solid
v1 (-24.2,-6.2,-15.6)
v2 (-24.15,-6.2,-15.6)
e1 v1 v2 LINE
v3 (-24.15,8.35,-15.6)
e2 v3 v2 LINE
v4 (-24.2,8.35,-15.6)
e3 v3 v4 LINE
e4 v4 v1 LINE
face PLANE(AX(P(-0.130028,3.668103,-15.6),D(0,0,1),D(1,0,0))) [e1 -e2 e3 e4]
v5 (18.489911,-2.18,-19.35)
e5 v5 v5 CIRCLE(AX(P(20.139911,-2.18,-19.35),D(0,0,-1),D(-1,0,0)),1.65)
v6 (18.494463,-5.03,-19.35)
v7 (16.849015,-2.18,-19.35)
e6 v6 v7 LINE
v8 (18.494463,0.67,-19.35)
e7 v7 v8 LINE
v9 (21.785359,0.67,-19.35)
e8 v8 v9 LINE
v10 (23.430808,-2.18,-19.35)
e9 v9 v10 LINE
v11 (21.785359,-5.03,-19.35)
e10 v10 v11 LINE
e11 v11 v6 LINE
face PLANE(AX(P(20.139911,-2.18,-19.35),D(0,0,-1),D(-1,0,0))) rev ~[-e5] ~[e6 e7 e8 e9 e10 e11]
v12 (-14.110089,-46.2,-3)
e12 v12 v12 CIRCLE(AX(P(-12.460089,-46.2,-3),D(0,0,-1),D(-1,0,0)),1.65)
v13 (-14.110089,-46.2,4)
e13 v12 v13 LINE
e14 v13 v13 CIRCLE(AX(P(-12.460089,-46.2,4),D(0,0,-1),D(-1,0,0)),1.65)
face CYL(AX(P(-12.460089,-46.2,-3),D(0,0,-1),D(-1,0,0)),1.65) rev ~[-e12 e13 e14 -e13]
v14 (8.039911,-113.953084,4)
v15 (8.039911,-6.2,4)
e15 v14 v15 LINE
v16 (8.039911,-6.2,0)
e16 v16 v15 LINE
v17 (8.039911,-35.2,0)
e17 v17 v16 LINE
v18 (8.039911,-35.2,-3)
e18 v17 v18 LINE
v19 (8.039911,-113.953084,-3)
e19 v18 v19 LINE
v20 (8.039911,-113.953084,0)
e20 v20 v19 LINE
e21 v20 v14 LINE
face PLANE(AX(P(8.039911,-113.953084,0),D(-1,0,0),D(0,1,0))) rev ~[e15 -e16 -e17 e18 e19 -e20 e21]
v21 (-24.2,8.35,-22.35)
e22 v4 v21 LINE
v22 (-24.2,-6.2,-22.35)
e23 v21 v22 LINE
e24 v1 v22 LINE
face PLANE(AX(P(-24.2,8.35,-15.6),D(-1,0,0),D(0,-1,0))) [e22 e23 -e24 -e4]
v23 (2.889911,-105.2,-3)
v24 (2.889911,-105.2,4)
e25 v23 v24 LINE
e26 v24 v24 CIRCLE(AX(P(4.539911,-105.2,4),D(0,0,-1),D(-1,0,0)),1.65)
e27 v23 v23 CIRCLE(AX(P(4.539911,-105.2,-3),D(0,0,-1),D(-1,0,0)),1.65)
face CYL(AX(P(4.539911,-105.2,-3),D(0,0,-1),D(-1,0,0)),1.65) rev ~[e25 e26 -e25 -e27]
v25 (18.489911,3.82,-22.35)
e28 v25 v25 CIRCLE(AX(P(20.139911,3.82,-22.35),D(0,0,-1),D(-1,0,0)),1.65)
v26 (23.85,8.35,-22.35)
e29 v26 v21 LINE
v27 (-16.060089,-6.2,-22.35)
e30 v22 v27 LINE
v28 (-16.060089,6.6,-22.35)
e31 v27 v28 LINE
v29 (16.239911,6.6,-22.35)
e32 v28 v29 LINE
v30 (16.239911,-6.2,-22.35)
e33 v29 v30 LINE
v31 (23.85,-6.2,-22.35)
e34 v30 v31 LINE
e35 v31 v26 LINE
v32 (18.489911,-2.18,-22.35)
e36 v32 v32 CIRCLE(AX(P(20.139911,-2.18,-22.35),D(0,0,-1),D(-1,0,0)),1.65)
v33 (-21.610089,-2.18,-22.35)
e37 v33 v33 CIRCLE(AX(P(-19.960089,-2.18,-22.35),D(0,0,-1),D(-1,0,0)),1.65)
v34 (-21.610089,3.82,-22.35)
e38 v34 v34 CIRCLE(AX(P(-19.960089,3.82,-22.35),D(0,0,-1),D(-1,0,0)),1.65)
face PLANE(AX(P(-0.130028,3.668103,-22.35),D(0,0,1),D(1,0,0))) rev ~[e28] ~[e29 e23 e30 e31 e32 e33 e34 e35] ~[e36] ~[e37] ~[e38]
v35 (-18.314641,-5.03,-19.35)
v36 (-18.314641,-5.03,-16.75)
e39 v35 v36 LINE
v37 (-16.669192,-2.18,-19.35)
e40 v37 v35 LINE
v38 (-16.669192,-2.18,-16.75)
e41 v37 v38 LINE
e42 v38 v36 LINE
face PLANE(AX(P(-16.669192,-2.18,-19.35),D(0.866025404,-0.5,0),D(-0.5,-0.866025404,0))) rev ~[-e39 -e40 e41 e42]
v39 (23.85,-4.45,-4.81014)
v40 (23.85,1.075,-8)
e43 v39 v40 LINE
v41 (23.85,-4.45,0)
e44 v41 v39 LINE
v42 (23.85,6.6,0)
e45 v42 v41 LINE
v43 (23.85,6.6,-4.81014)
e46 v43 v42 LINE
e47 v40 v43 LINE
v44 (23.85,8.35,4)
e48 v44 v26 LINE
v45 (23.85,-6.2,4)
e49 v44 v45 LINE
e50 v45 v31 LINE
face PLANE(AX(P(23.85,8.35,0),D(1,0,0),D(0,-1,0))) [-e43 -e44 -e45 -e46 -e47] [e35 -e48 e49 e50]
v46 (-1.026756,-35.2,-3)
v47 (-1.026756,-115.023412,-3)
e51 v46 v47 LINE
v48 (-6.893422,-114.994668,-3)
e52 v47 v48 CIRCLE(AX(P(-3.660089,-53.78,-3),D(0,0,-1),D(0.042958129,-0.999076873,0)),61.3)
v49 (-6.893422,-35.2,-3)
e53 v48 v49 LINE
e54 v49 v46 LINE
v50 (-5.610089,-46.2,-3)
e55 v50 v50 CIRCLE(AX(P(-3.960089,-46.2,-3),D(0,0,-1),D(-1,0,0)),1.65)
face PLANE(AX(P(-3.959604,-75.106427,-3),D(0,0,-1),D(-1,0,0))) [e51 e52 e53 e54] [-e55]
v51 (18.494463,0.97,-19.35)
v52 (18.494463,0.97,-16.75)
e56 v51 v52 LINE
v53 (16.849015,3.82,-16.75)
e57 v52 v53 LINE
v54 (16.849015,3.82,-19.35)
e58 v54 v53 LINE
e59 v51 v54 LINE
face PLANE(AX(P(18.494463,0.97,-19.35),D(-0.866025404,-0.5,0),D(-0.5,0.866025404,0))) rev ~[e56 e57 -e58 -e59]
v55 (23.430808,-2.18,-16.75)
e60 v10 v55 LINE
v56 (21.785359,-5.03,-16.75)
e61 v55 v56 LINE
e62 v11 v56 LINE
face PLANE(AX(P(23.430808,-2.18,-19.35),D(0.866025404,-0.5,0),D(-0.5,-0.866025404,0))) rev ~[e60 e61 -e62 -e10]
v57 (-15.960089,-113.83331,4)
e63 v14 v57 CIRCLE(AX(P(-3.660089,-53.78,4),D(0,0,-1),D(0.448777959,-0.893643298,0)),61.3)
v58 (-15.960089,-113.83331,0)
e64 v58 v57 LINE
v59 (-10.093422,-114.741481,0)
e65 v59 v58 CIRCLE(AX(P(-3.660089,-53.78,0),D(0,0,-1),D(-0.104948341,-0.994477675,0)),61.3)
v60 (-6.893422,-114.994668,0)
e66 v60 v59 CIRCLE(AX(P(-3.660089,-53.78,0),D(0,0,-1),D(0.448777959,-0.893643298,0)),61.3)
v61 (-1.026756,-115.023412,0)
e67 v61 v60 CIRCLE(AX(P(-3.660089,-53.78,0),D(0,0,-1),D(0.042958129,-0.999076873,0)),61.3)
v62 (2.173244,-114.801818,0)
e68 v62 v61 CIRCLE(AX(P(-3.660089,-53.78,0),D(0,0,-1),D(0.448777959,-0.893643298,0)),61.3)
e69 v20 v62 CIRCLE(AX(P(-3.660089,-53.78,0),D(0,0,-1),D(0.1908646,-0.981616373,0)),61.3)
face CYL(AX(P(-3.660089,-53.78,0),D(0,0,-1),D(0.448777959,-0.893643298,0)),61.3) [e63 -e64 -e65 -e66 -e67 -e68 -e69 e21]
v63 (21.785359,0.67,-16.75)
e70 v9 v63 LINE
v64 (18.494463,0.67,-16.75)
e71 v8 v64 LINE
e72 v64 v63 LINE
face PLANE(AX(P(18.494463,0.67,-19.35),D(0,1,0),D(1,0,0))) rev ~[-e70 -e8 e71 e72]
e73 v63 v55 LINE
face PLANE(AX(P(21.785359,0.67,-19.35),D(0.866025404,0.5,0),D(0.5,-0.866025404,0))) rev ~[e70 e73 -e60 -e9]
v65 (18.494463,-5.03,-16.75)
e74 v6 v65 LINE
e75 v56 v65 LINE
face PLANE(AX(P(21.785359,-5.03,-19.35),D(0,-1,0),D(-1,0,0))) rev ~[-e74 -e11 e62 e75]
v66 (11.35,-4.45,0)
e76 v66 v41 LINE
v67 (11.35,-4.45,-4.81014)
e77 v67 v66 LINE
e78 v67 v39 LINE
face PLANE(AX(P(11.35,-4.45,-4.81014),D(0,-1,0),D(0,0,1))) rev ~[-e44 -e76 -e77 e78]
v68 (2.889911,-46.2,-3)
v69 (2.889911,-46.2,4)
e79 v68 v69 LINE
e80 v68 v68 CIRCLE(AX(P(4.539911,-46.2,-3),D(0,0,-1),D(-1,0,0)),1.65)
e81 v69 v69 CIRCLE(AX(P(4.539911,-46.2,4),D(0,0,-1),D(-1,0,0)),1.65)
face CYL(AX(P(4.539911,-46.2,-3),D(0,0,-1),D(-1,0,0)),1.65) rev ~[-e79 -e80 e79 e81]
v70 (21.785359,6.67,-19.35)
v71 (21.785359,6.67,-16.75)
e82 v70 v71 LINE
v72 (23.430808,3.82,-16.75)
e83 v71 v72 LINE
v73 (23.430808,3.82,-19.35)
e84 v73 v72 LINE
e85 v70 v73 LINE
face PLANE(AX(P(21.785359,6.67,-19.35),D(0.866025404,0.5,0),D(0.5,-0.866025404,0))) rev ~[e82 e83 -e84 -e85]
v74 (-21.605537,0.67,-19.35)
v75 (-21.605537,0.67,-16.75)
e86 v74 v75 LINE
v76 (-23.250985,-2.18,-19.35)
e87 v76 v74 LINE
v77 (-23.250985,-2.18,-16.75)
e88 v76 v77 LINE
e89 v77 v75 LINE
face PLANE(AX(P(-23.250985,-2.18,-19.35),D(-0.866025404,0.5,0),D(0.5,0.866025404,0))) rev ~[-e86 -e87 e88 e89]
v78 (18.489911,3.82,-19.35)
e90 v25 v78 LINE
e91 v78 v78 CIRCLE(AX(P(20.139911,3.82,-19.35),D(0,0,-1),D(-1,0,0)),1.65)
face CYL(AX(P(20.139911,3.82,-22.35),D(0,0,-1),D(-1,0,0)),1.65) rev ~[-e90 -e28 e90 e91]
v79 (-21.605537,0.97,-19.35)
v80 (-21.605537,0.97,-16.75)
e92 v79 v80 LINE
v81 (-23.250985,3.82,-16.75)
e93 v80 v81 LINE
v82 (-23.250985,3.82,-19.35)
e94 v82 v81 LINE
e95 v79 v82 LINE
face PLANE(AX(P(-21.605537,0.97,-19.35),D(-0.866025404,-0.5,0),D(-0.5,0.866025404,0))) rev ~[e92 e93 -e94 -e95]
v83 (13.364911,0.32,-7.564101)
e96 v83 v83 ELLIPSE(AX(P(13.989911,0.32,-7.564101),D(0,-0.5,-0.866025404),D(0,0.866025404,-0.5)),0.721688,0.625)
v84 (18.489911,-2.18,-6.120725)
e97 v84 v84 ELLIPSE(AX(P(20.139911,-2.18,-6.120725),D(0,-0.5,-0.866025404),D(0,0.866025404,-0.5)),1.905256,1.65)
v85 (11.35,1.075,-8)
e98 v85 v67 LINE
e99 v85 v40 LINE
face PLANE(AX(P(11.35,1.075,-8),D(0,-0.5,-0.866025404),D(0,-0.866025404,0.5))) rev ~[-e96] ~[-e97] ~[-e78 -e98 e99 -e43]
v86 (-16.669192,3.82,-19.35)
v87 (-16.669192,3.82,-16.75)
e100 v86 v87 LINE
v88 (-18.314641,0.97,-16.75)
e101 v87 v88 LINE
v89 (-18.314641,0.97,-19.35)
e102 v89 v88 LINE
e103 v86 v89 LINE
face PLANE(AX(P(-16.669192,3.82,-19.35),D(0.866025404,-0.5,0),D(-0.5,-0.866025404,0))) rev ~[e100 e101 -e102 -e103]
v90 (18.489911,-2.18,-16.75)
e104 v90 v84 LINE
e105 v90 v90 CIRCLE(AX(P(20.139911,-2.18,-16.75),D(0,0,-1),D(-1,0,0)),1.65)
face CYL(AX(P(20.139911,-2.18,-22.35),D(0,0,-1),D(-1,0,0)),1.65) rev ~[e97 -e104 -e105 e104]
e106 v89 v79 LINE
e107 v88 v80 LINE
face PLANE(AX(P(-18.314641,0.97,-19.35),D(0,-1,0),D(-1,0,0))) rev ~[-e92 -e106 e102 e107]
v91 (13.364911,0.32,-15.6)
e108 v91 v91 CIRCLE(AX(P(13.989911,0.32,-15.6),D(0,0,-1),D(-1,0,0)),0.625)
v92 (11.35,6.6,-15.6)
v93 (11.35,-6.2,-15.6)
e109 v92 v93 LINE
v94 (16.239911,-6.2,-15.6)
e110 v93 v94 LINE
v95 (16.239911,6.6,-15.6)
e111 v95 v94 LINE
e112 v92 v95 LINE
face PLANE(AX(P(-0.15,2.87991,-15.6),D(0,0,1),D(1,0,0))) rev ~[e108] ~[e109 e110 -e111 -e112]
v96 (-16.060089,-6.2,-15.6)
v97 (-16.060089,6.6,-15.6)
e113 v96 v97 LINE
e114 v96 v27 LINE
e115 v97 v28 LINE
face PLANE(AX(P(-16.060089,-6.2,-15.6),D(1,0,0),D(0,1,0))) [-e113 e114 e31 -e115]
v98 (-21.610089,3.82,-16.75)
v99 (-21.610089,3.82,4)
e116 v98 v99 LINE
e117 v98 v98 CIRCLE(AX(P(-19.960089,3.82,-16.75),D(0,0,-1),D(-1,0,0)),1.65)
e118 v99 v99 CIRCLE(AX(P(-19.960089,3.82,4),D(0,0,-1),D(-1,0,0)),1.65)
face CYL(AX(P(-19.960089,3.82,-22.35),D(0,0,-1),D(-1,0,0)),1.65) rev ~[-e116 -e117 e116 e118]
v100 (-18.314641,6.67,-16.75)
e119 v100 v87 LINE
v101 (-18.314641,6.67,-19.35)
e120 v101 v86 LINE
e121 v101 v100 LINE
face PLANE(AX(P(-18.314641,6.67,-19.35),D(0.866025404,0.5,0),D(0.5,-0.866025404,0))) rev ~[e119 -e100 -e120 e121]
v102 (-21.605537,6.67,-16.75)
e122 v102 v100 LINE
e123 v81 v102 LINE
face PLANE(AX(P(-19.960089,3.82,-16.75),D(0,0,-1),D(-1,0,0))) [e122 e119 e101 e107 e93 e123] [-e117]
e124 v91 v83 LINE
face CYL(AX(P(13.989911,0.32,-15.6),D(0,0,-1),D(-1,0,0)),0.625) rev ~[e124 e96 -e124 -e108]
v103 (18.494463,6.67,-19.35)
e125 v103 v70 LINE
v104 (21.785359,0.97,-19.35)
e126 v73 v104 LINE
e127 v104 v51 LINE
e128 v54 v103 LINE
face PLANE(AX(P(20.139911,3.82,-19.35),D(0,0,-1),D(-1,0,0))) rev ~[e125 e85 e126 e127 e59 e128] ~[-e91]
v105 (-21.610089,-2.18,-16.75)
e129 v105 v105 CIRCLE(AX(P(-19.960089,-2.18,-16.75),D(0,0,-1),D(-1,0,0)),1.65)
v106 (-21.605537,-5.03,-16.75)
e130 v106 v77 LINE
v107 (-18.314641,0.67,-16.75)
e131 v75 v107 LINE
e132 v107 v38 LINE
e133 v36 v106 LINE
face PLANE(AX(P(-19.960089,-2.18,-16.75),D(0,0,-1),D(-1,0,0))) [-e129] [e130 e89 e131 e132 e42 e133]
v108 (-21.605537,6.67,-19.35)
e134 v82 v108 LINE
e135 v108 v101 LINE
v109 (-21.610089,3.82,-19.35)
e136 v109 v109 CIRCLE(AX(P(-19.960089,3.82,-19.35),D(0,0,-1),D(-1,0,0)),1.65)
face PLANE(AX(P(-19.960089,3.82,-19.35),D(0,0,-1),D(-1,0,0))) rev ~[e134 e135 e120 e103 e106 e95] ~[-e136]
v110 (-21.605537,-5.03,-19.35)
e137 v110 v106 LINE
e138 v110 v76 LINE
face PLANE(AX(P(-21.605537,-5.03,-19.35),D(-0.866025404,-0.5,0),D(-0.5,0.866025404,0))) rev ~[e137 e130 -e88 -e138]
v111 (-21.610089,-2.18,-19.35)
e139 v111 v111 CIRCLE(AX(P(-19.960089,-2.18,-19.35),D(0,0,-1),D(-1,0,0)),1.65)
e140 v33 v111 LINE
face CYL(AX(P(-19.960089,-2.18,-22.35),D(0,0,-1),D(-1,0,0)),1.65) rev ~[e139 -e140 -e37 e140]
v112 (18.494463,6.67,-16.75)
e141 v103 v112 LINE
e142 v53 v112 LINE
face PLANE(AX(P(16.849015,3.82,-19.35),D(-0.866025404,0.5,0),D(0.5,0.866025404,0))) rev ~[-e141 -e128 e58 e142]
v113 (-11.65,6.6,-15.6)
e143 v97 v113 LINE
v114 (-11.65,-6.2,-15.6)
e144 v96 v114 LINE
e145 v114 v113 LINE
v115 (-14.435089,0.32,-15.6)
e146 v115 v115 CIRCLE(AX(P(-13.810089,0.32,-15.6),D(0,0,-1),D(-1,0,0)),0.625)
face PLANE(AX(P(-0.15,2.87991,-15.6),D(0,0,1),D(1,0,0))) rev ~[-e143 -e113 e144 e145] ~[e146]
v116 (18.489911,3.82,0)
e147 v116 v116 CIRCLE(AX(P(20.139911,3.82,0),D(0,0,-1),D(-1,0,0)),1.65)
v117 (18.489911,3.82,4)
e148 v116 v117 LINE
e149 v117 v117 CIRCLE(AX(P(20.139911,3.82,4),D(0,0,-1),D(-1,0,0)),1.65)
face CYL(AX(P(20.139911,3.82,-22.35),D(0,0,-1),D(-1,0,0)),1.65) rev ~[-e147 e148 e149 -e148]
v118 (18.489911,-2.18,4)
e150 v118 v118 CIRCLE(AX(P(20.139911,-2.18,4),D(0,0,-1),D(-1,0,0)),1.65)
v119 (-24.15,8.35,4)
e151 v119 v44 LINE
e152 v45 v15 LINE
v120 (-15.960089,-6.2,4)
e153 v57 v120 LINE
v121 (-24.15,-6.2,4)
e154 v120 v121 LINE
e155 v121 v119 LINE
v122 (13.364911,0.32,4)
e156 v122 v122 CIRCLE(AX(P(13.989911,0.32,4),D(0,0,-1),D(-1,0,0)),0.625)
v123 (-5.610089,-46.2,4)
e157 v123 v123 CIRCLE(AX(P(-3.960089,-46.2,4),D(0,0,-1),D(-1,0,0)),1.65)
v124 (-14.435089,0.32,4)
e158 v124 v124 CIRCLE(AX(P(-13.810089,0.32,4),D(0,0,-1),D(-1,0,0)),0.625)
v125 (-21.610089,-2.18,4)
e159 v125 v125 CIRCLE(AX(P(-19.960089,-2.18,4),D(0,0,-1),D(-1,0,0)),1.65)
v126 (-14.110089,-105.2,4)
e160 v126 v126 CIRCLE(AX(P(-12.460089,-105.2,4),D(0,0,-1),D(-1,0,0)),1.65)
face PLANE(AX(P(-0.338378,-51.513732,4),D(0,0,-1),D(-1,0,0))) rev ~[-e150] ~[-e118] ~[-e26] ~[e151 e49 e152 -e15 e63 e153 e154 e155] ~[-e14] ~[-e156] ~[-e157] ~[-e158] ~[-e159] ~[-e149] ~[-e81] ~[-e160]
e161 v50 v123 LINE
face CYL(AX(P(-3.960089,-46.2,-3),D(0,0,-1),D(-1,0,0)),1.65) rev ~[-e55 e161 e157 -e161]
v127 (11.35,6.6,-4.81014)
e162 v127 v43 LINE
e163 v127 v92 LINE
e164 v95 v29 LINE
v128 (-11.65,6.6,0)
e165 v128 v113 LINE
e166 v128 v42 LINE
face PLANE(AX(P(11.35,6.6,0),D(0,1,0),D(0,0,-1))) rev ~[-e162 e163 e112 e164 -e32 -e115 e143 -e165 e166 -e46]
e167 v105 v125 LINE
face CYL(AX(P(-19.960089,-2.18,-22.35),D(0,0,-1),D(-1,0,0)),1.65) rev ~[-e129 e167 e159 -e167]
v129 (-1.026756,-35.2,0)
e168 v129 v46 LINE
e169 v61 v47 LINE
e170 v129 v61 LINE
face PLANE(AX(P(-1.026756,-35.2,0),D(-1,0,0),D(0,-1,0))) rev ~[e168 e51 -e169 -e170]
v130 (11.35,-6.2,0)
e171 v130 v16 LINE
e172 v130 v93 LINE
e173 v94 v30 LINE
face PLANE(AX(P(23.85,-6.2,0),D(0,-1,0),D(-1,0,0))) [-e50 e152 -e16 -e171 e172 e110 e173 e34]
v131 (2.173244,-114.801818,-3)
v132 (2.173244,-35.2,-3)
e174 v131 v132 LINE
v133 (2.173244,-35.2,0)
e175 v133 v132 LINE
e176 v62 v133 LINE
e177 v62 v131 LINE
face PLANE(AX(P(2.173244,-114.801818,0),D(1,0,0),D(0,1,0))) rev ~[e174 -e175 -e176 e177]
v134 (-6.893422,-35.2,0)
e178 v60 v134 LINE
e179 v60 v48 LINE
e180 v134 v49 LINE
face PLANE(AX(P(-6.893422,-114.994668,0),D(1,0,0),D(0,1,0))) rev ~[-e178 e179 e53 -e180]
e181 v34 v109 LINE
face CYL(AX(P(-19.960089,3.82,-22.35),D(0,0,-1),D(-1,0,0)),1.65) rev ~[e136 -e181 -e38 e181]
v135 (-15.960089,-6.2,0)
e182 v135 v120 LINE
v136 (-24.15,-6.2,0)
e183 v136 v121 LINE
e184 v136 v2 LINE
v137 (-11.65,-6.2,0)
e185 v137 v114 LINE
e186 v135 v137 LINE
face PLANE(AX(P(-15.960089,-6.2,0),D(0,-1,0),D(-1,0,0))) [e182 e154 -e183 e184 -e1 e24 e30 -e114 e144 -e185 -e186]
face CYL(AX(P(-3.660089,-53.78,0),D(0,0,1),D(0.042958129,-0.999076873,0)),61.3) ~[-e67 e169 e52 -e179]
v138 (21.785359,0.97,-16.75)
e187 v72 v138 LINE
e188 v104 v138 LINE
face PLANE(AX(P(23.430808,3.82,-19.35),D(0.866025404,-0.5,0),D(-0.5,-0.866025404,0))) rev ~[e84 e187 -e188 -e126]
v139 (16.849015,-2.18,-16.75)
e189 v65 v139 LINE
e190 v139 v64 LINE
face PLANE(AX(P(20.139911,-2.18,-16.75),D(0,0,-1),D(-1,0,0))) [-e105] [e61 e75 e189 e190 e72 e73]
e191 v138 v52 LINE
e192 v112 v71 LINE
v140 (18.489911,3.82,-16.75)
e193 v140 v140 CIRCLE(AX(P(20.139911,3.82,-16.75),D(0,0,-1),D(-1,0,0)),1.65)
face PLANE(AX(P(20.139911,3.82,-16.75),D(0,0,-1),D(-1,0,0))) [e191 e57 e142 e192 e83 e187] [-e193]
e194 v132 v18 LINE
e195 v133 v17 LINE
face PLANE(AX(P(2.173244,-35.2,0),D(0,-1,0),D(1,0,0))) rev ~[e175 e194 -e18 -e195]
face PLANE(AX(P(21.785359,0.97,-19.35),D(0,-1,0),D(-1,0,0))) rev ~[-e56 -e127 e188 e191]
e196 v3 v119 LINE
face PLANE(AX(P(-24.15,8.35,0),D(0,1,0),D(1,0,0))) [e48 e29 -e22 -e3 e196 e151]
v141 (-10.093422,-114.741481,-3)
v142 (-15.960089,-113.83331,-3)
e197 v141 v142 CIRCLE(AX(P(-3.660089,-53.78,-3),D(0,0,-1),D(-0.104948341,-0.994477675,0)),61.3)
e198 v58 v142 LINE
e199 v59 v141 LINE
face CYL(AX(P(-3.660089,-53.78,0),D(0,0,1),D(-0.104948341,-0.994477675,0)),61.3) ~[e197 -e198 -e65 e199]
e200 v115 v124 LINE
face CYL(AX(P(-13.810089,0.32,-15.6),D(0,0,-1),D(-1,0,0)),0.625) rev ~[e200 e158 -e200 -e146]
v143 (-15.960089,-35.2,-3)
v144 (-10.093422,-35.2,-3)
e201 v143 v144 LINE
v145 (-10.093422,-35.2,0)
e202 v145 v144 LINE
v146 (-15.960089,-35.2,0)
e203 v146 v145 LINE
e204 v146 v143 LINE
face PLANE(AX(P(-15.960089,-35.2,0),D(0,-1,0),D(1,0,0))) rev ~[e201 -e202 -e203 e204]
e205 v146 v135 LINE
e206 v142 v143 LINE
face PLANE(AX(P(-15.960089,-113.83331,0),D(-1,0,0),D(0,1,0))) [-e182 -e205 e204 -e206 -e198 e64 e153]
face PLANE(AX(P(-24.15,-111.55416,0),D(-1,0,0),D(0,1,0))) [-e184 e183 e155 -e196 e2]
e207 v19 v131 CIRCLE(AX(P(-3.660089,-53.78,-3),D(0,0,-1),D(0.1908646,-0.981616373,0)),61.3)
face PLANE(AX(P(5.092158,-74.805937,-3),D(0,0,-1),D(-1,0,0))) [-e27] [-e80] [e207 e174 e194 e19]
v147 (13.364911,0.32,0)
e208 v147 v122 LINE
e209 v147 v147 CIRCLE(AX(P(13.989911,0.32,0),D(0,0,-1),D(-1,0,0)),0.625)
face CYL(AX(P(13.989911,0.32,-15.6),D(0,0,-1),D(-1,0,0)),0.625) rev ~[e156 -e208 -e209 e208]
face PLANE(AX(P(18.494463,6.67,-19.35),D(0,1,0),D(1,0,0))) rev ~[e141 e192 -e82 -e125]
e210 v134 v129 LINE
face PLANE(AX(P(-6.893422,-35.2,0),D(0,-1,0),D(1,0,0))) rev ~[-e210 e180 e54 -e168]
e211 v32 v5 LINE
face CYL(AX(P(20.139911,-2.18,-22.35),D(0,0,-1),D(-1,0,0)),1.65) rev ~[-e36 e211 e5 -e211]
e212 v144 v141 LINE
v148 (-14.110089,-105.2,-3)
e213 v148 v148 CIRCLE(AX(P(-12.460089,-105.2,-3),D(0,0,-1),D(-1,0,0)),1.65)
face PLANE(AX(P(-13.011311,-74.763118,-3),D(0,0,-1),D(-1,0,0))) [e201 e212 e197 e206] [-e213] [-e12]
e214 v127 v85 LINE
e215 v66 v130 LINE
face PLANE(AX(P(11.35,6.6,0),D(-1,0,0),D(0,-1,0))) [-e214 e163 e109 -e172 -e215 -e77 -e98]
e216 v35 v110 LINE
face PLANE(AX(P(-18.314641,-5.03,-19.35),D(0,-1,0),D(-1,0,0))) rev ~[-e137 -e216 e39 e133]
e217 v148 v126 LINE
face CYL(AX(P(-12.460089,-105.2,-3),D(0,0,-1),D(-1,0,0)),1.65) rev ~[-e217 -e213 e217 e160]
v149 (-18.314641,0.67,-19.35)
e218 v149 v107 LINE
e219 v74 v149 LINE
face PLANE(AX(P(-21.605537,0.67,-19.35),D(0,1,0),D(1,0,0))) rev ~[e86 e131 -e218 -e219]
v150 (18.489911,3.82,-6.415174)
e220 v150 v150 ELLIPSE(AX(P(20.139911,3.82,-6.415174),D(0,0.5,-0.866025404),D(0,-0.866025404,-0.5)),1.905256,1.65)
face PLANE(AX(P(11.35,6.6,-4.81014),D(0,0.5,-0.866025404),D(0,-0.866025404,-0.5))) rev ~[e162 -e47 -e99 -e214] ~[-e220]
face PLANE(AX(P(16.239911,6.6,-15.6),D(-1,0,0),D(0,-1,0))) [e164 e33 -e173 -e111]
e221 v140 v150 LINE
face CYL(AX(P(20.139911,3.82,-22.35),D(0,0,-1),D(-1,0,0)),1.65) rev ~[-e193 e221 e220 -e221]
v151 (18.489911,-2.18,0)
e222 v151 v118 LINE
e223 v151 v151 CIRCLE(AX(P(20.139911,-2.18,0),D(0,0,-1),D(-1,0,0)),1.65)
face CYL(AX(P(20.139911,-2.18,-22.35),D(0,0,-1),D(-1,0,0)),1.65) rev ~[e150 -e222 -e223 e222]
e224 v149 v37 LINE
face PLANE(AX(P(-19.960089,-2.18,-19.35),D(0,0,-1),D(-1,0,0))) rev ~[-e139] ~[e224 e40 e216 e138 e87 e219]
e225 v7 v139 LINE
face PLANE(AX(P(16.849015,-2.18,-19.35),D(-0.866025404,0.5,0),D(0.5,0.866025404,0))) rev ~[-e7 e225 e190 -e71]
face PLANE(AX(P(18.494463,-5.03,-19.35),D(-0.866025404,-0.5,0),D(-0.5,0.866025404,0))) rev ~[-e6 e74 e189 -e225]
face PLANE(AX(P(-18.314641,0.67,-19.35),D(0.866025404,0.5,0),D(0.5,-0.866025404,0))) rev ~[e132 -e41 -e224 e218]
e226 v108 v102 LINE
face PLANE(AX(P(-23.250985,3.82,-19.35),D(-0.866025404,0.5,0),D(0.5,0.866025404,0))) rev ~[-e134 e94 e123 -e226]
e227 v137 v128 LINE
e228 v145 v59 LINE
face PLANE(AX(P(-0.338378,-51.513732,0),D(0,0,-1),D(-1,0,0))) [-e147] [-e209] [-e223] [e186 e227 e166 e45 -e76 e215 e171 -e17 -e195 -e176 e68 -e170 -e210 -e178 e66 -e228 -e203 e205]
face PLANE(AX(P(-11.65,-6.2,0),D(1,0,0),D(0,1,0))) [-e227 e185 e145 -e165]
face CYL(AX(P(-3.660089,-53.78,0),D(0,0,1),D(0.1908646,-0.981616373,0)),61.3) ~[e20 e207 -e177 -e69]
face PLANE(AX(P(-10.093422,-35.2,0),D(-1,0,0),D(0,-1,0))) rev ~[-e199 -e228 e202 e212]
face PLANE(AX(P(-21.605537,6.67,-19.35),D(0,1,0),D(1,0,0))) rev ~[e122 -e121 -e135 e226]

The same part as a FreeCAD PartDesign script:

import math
import FreeCAD as App
import Part
import Sketcher
Q = App.Units.Quantity

doc = App.newDocument("Part")
body = doc.addObject("PartDesign::Body", "Body")

sketch1 = body.newObject("Sketcher::SketchObject", "Sketch")
sketch1.AttachmentSupport = (doc.getObject("XY_Plane"), [""])
sketch1.MapMode = "FlatFace"
sketch1.addGeometry([
    Part.LineSegment(App.Vector(-11.65, 6.6, 0), App.Vector(11.35, 6.6, 0)),
    Part.LineSegment(App.Vector(11.35, 6.6, 0), App.Vector(11.35, -6.2, 0)),
    Part.LineSegment(App.Vector(11.35, -6.2, 0), App.Vector(23.85, -6.2, 0)),
    Part.LineSegment(App.Vector(23.85, -6.2, 0), App.Vector(23.85, 8.35, 0)),
    Part.LineSegment(App.Vector(23.85, 8.35, 0), App.Vector(-24.15, 8.35, 0)),
    Part.LineSegment(App.Vector(-24.15, 8.35, 0), App.Vector(-24.15, -6.2, 0)),
    Part.LineSegment(App.Vector(-24.15, -6.2, 0), App.Vector(-11.65, -6.2, 0)),
    Part.LineSegment(App.Vector(-11.65, -6.2, 0), App.Vector(-11.65, 6.6, 0)),
], False)
sketch1.addConstraint([
    Sketcher.Constraint("Coincident", 0, 2, 1, 1),
    Sketcher.Constraint("Coincident", 1, 2, 2, 1),
    Sketcher.Constraint("Coincident", 2, 2, 3, 1),
    Sketcher.Constraint("Coincident", 3, 2, 4, 1),
    Sketcher.Constraint("Coincident", 4, 2, 5, 1),
    Sketcher.Constraint("Coincident", 5, 2, 6, 1),
    Sketcher.Constraint("Coincident", 6, 2, 7, 1),
    Sketcher.Constraint("Coincident", 7, 2, 0, 1),
    Sketcher.Constraint("Horizontal", 0),
    Sketcher.Constraint("Vertical", 1),
    Sketcher.Constraint("Horizontal", 2),
    Sketcher.Constraint("Vertical", 3),
    Sketcher.Constraint("Horizontal", 4),
    Sketcher.Constraint("Vertical", 5),
    Sketcher.Constraint("Horizontal", 6),
    Sketcher.Constraint("Vertical", 7),
    Sketcher.Constraint("Horizontal", 2, 2, 5, 2),
    Sketcher.Constraint("Equal", 2, 6),
    Sketcher.Constraint("DistanceX", 0, 1, 0, 2, Q("23 mm")),
    Sketcher.Constraint("DistanceX", 4, 2, 4, 1, Q("48 mm")),
    Sketcher.Constraint("DistanceY", 1, 2, 1, 1, Q("12.8 mm")),
    Sketcher.Constraint("DistanceY", 3, 1, 3, 2, Q("14.55 mm")),
    Sketcher.Constraint("DistanceY", -1, 1, 0, 2, Q("6.6 mm")),
    Sketcher.Constraint("DistanceX", -1, 1, 0, 2, Q("11.35 mm")),
])
pad1 = body.newObject("PartDesign::Pad", "Pad")
pad1.Profile = sketch1
pad1.Length = 15.6
pad1.Reversed = True

sketch2 = body.newObject("Sketcher::SketchObject", "Sketch001")
sketch2.AttachmentSupport = (doc.getObject("XY_Plane"), [""])
sketch2.MapMode = "FlatFace"
sketch2.AttachmentOffset = App.Placement(App.Vector(0, 0, -15.6), App.Rotation())
sketch2.addGeometry([
    Part.LineSegment(App.Vector(23.85, -6.2, 0), App.Vector(16.239911, -6.2, 0)),
    Part.LineSegment(App.Vector(16.239911, -6.2, 0), App.Vector(16.239911, 6.6, 0)),
    Part.LineSegment(App.Vector(16.239911, 6.6, 0), App.Vector(-16.060089, 6.6, 0)),
    Part.LineSegment(App.Vector(-16.060089, 6.6, 0), App.Vector(-16.060089, -6.2, 0)),
    Part.LineSegment(App.Vector(-16.060089, -6.2, 0), App.Vector(-24.2, -6.2, 0)),
    Part.LineSegment(App.Vector(-24.2, -6.2, 0), App.Vector(-24.2, 8.35, 0)),
    Part.LineSegment(App.Vector(-24.2, 8.35, 0), App.Vector(23.85, 8.35, 0)),
    Part.LineSegment(App.Vector(23.85, 8.35, 0), App.Vector(23.85, -6.2, 0)),
], False)
sketch2.addConstraint([
    Sketcher.Constraint("Coincident", 0, 2, 1, 1),
    Sketcher.Constraint("Coincident", 1, 2, 2, 1),
    Sketcher.Constraint("Coincident", 2, 2, 3, 1),
    Sketcher.Constraint("Coincident", 3, 2, 4, 1),
    Sketcher.Constraint("Coincident", 4, 2, 5, 1),
    Sketcher.Constraint("Coincident", 5, 2, 6, 1),
    Sketcher.Constraint("Coincident", 6, 2, 7, 1),
    Sketcher.Constraint("Coincident", 7, 2, 0, 1),
    Sketcher.Constraint("Horizontal", 0),
    Sketcher.Constraint("Vertical", 1),
    Sketcher.Constraint("Horizontal", 2),
    Sketcher.Constraint("Vertical", 3),
    Sketcher.Constraint("Horizontal", 4),
    Sketcher.Constraint("Vertical", 5),
    Sketcher.Constraint("Horizontal", 6),
    Sketcher.Constraint("Vertical", 7),
    Sketcher.Constraint("Horizontal", 0, 2, 3, 2),
    Sketcher.Constraint("DistanceX", 2, 2, 2, 1, Q("32.3 mm")),
    Sketcher.Constraint("DistanceY", 1, 1, 1, 2, Q("12.8 mm")),
    Sketcher.Constraint("DistanceX", 6, 1, 6, 2, Q("48.05 mm")),
    Sketcher.Constraint("DistanceY", 5, 1, 5, 2, Q("14.55 mm")),
    Sketcher.Constraint("DistanceY", 0, 2, -1, 1, Q("6.2 mm")),
    Sketcher.Constraint("DistanceX", 4, 2, -1, 1, Q("24.2 mm")),
    Sketcher.Constraint("DistanceX", 0, 2, 0, 1, Q("7.610089 mm")),
])
pad2 = body.newObject("PartDesign::Pad", "Pad001")
pad2.Profile = sketch2
pad2.Length = 6.75
pad2.Reversed = True

sketch3 = body.newObject("Sketcher::SketchObject", "Sketch002")
sketch3.AttachmentSupport = (doc.getObject("XY_Plane"), [""])
sketch3.MapMode = "FlatFace"
sketch3.addGeometry([
    Part.LineSegment(App.Vector(23.85, 8.35, 0), App.Vector(-24.15, 8.35, 0)),
    Part.LineSegment(App.Vector(-24.15, 8.35, 0), App.Vector(-24.15, -111.55416, 0)),
    Part.ArcOfCircle(Part.Circle(App.Vector(-3.660089, -53.78, 0), App.Vector(0, 0, 1), 61.3), math.radians(-109.52732), math.radians(-63.334694)),
    Part.LineSegment(App.Vector(23.85, -108.560334, 0), App.Vector(23.85, 8.35, 0)),
], False)
sketch3.addConstraint([
    Sketcher.Constraint("Coincident", 0, 2, 1, 1),
    Sketcher.Constraint("Coincident", 1, 2, 2, 1),
    Sketcher.Constraint("Coincident", 2, 2, 3, 1),
    Sketcher.Constraint("Coincident", 3, 2, 0, 1),
    Sketcher.Constraint("Horizontal", 0),
    Sketcher.Constraint("Vertical", 1),
    Sketcher.Constraint("Vertical", 3),
    Sketcher.Constraint("Radius", 2, Q("61.3 mm")),
    Sketcher.Constraint("DistanceX", 0, 2, 0, 1, Q("48 mm")),
    Sketcher.Constraint("DistanceY", 2, 3, -1, 1, Q("53.78 mm")),
    Sketcher.Constraint("DistanceX", 0, 2, -1, 1, Q("24.15 mm")),
    Sketcher.Constraint("DistanceY", -1, 1, 0, 2, Q("8.35 mm")),
    Sketcher.Constraint("DistanceY", 1, 2, 1, 1, Q("119.90416 mm")),
])
pad3 = body.newObject("PartDesign::Pad", "Pad002")
pad3.Profile = sketch3
pad3.Length = 4

sketch4 = body.newObject("Sketcher::SketchObject", "Sketch003")
sketch4.AttachmentSupport = (doc.getObject("XY_Plane"), [""])
sketch4.MapMode = "FlatFace"
sketch4.addGeometry([
    Part.ArcOfCircle(Part.Circle(App.Vector(-3.660089, -53.78, 0), App.Vector(0, 0, 1), 61.3), math.radians(-101.57512), math.radians(-96.02419)),
    Part.LineSegment(App.Vector(-15.960089, -113.83331, 0), App.Vector(-15.960089, -35.2, 0)),
    Part.LineSegment(App.Vector(-15.960089, -35.2, 0), App.Vector(-10.093422, -35.2, 0)),
    Part.LineSegment(App.Vector(-10.093422, -35.2, 0), App.Vector(-10.093422, -114.741481, 0)),
    Part.ArcOfCircle(Part.Circle(App.Vector(-3.660089, -53.78, 0), App.Vector(0, 0, 1), 61.3), math.radians(-93.02353), math.radians(-87.537923)),
    Part.LineSegment(App.Vector(-6.893422, -114.994668, 0), App.Vector(-6.893422, -35.2, 0)),
    Part.LineSegment(App.Vector(-6.893422, -35.2, 0), App.Vector(-1.026756, -35.2, 0)),
    Part.LineSegment(App.Vector(-1.026756, -35.2, 0), App.Vector(-1.026756, -115.023412, 0)),
    Part.ArcOfCircle(Part.Circle(App.Vector(-3.660089, -53.78, 0), App.Vector(0, 0, 1), 61.3), math.radians(-84.539447), math.radians(-78.996754)),
    Part.LineSegment(App.Vector(2.173244, -114.801818, 0), App.Vector(2.173244, -35.2, 0)),
    Part.LineSegment(App.Vector(2.173244, -35.2, 0), App.Vector(8.039911, -35.2, 0)),
    Part.LineSegment(App.Vector(8.039911, -35.2, 0), App.Vector(8.039911, -113.953084, 0)),
], False)
sketch4.addConstraint([
    Sketcher.Constraint("Coincident", 0, 1, 1, 1),
    Sketcher.Constraint("Coincident", 1, 2, 2, 1),
    Sketcher.Constraint("Coincident", 2, 2, 3, 1),
    Sketcher.Constraint("Coincident", 3, 2, 0, 2),
    Sketcher.Constraint("Coincident", 4, 1, 5, 1),
    Sketcher.Constraint("Coincident", 5, 2, 6, 1),
    Sketcher.Constraint("Coincident", 6, 2, 7, 1),
    Sketcher.Constraint("Coincident", 7, 2, 4, 2),
    Sketcher.Constraint("Coincident", 8, 1, 9, 1),
    Sketcher.Constraint("Coincident", 9, 2, 10, 1),
    Sketcher.Constraint("Coincident", 10, 2, 11, 1),
    Sketcher.Constraint("Coincident", 11, 2, 8, 2),
    Sketcher.Constraint("Vertical", 1),
    Sketcher.Constraint("Horizontal", 2),
    Sketcher.Constraint("Vertical", 3),
    Sketcher.Constraint("Vertical", 5),
    Sketcher.Constraint("Horizontal", 6),
    Sketcher.Constraint("Vertical", 7),
    Sketcher.Constraint("Vertical", 9),
    Sketcher.Constraint("Horizontal", 10),
    Sketcher.Constraint("Vertical", 11),
    Sketcher.Constraint("Coincident", 4, 3, 0, 3),
    Sketcher.Constraint("Coincident", 8, 3, 0, 3),
    Sketcher.Constraint("Equal", 0, 4),
    Sketcher.Constraint("Equal", 4, 8),
    Sketcher.Constraint("Horizontal", 2, 2, 5, 2),
    Sketcher.Constraint("Horizontal", 6, 2, 9, 2),
    Sketcher.Constraint("Equal", 2, 6),
    Sketcher.Constraint("Equal", 6, 10),
    Sketcher.Constraint("Radius", 0, Q("61.3 mm")),
    Sketcher.Constraint("DistanceX", 0, 1, 11, 2, Q("24 mm")),
    Sketcher.Constraint("DistanceY", 1, 2, -1, 1, Q("35.2 mm")),
    Sketcher.Constraint("DistanceX", 0, 1, 8, 3, Q("12.3 mm")),
    Sketcher.Constraint("DistanceX", 3, 2, 4, 1, Q("3.2 mm")),
    Sketcher.Constraint("DistanceX", 7, 2, 8, 1, Q("3.2 mm")),
    Sketcher.Constraint("DistanceY", 0, 3, -1, 1, Q("53.78 mm")),
    Sketcher.Constraint("DistanceX", 0, 3, -1, 1, Q("3.660089 mm")),
])
pad4 = body.newObject("PartDesign::Pad", "Pad003")
pad4.Profile = sketch4
pad4.Length = 3
pad4.Reversed = True

sketch5 = body.newObject("Sketcher::SketchObject", "Sketch004")
sketch5.AttachmentSupport = (doc.getObject("XY_Plane"), [""])
sketch5.MapMode = "FlatFace"
sketch5.AttachmentOffset = App.Placement(App.Vector(0, 0, -3), App.Rotation())
sketch5.addGeometry([
    Part.Circle(App.Vector(-3.960089, -46.2, 0), App.Vector(0, 0, 1), 1.65),
    Part.Circle(App.Vector(-12.460089, -46.2, 0), App.Vector(0, 0, 1), 1.65),
    Part.Circle(App.Vector(4.539911, -46.2, 0), App.Vector(0, 0, 1), 1.65),
    Part.Circle(App.Vector(-12.460089, -105.2, 0), App.Vector(0, 0, 1), 1.65),
    Part.Circle(App.Vector(4.539911, -105.2, 0), App.Vector(0, 0, 1), 1.65),
], False)
sketch5.addConstraint([
    Sketcher.Constraint("Equal", 0, 1),
    Sketcher.Constraint("Equal", 1, 2),
    Sketcher.Constraint("Equal", 2, 3),
    Sketcher.Constraint("Equal", 3, 4),
    Sketcher.Constraint("Horizontal", 0, 3, 1, 3),
    Sketcher.Constraint("Horizontal", 1, 3, 2, 3),
    Sketcher.Constraint("Horizontal", 3, 3, 4, 3),
    Sketcher.Constraint("Vertical", 1, 3, 3, 3),
    Sketcher.Constraint("Vertical", 2, 3, 4, 3),
    Sketcher.Constraint("Diameter", 0, Q("3.3 mm")),
    Sketcher.Constraint("DistanceX", 1, 3, 2, 3, Q("17 mm")),
    Sketcher.Constraint("DistanceY", 3, 3, 1, 3, Q("59 mm")),
    Sketcher.Constraint("DistanceY", 0, 3, -1, 1, Q("46.2 mm")),
    Sketcher.Constraint("DistanceX", 1, 3, 0, 3, Q("8.5 mm")),
    Sketcher.Constraint("DistanceX", 0, 3, -1, 1, Q("3.960089 mm")),
])
pocket1 = body.newObject("PartDesign::Pocket", "Pocket")
pocket1.Profile = sketch5
pocket1.Type = "ThroughAll"
pocket1.Reversed = True

sketch6 = body.newObject("Sketcher::SketchObject", "Sketch005")
sketch6.AttachmentSupport = (doc.getObject("XY_Plane"), [""])
sketch6.MapMode = "FlatFace"
sketch6.AttachmentOffset = App.Placement(App.Vector(0, 0, -22.35), App.Rotation())
sketch6.addGeometry([
    Part.Circle(App.Vector(20.139911, -2.18, 0), App.Vector(0, 0, 1), 1.65),
    Part.Circle(App.Vector(20.139911, 3.82, 0), App.Vector(0, 0, 1), 1.65),
    Part.Circle(App.Vector(-19.960089, -2.18, 0), App.Vector(0, 0, 1), 1.65),
    Part.Circle(App.Vector(-19.960089, 3.82, 0), App.Vector(0, 0, 1), 1.65),
], False)
sketch6.addConstraint([
    Sketcher.Constraint("Equal", 0, 1),
    Sketcher.Constraint("Equal", 1, 2),
    Sketcher.Constraint("Equal", 2, 3),
    Sketcher.Constraint("Horizontal", 0, 3, 2, 3),
    Sketcher.Constraint("Horizontal", 1, 3, 3, 3),
    Sketcher.Constraint("Vertical", 0, 3, 1, 3),
    Sketcher.Constraint("Vertical", 2, 3, 3, 3),
    Sketcher.Constraint("Diameter", 0, Q("3.3 mm")),
    Sketcher.Constraint("DistanceY", 0, 3, 1, 3, Q("6 mm")),
    Sketcher.Constraint("DistanceX", 2, 3, 0, 3, Q("40.1 mm")),
    Sketcher.Constraint("DistanceY", 0, 3, -1, 1, Q("2.18 mm")),
    Sketcher.Constraint("DistanceX", -1, 1, 0, 3, Q("20.139911 mm")),
])
pocket2 = body.newObject("PartDesign::Pocket", "Pocket001")
pocket2.Profile = sketch6
pocket2.Type = "ThroughAll"
pocket2.Reversed = True

sketch7 = body.newObject("Sketcher::SketchObject", "Sketch006")
sketch7.AttachmentSupport = (doc.getObject("XY_Plane"), [""])
sketch7.MapMode = "FlatFace"
sketch7.AttachmentOffset = App.Placement(App.Vector(0, 0, -19.35), App.Rotation())
sketch7.addGeometry([
    Part.LineSegment(App.Vector(-18.314641, 0.67, 0), App.Vector(-16.669192, -2.18, 0)),
    Part.LineSegment(App.Vector(-16.669192, -2.18, 0), App.Vector(-18.314641, -5.03, 0)),
    Part.LineSegment(App.Vector(-18.314641, -5.03, 0), App.Vector(-21.605537, -5.03, 0)),
    Part.LineSegment(App.Vector(-21.605537, -5.03, 0), App.Vector(-23.250985, -2.18, 0)),
    Part.LineSegment(App.Vector(-23.250985, -2.18, 0), App.Vector(-21.605537, 0.67, 0)),
    Part.LineSegment(App.Vector(-21.605537, 0.67, 0), App.Vector(-18.314641, 0.67, 0)),
    Part.LineSegment(App.Vector(-21.605537, 6.67, 0), App.Vector(-18.314641, 6.67, 0)),
    Part.LineSegment(App.Vector(-18.314641, 6.67, 0), App.Vector(-16.669192, 3.82, 0)),
    Part.LineSegment(App.Vector(-16.669192, 3.82, 0), App.Vector(-18.314641, 0.97, 0)),
    Part.LineSegment(App.Vector(-18.314641, 0.97, 0), App.Vector(-21.605537, 0.97, 0)),
    Part.LineSegment(App.Vector(-21.605537, 0.97, 0), App.Vector(-23.250985, 3.82, 0)),
    Part.LineSegment(App.Vector(-23.250985, 3.82, 0), App.Vector(-21.605537, 6.67, 0)),
    Part.LineSegment(App.Vector(21.785359, 6.67, 0), App.Vector(23.430808, 3.82, 0)),
    Part.LineSegment(App.Vector(23.430808, 3.82, 0), App.Vector(21.785359, 0.97, 0)),
    Part.LineSegment(App.Vector(21.785359, 0.97, 0), App.Vector(18.494463, 0.97, 0)),
    Part.LineSegment(App.Vector(18.494463, 0.97, 0), App.Vector(16.849015, 3.82, 0)),
    Part.LineSegment(App.Vector(16.849015, 3.82, 0), App.Vector(18.494463, 6.67, 0)),
    Part.LineSegment(App.Vector(18.494463, 6.67, 0), App.Vector(21.785359, 6.67, 0)),
    Part.LineSegment(App.Vector(21.785359, 0.67, 0), App.Vector(23.430808, -2.18, 0)),
    Part.LineSegment(App.Vector(23.430808, -2.18, 0), App.Vector(21.785359, -5.03, 0)),
    Part.LineSegment(App.Vector(21.785359, -5.03, 0), App.Vector(18.494463, -5.03, 0)),
    Part.LineSegment(App.Vector(18.494463, -5.03, 0), App.Vector(16.849015, -2.18, 0)),
    Part.LineSegment(App.Vector(16.849015, -2.18, 0), App.Vector(18.494463, 0.67, 0)),
    Part.LineSegment(App.Vector(18.494463, 0.67, 0), App.Vector(21.785359, 0.67, 0)),
], False)
sketch7.addConstraint([
    Sketcher.Constraint("Coincident", 0, 2, 1, 1),
    Sketcher.Constraint("Coincident", 1, 2, 2, 1),
    Sketcher.Constraint("Coincident", 2, 2, 3, 1),
    Sketcher.Constraint("Coincident", 3, 2, 4, 1),
    Sketcher.Constraint("Coincident", 4, 2, 5, 1),
    Sketcher.Constraint("Coincident", 5, 2, 0, 1),
    Sketcher.Constraint("Coincident", 6, 2, 7, 1),
    Sketcher.Constraint("Coincident", 7, 2, 8, 1),
    Sketcher.Constraint("Coincident", 8, 2, 9, 1),
    Sketcher.Constraint("Coincident", 9, 2, 10, 1),
    Sketcher.Constraint("Coincident", 10, 2, 11, 1),
    Sketcher.Constraint("Coincident", 11, 2, 6, 1),
    Sketcher.Constraint("Coincident", 12, 2, 13, 1),
    Sketcher.Constraint("Coincident", 13, 2, 14, 1),
    Sketcher.Constraint("Coincident", 14, 2, 15, 1),
    Sketcher.Constraint("Coincident", 15, 2, 16, 1),
    Sketcher.Constraint("Coincident", 16, 2, 17, 1),
    Sketcher.Constraint("Coincident", 17, 2, 12, 1),
    Sketcher.Constraint("Coincident", 18, 2, 19, 1),
    Sketcher.Constraint("Coincident", 19, 2, 20, 1),
    Sketcher.Constraint("Coincident", 20, 2, 21, 1),
    Sketcher.Constraint("Coincident", 21, 2, 22, 1),
    Sketcher.Constraint("Coincident", 22, 2, 23, 1),
    Sketcher.Constraint("Coincident", 23, 2, 18, 1),
    Sketcher.Constraint("Horizontal", 2),
    Sketcher.Constraint("Horizontal", 5),
    Sketcher.Constraint("Horizontal", 6),
    Sketcher.Constraint("Horizontal", 9),
    Sketcher.Constraint("Horizontal", 14),
    Sketcher.Constraint("Horizontal", 17),
    Sketcher.Constraint("Horizontal", 20),
    Sketcher.Constraint("Horizontal", 23),
    Sketcher.Constraint("Parallel", 0, 3),
    Sketcher.Constraint("Parallel", 1, 4),
    Sketcher.Constraint("Parallel", 3, 7),
    Sketcher.Constraint("Parallel", 4, 8),
    Sketcher.Constraint("Parallel", 7, 10),
    Sketcher.Constraint("Parallel", 8, 11),
    Sketcher.Constraint("Parallel", 10, 12),
    Sketcher.Constraint("Parallel", 11, 13),
    Sketcher.Constraint("Parallel", 12, 15),
    Sketcher.Constraint("Parallel", 13, 16),
    Sketcher.Constraint("Parallel", 15, 18),
    Sketcher.Constraint("Parallel", 16, 19),
    Sketcher.Constraint("Parallel", 18, 21),
    Sketcher.Constraint("Parallel", 19, 22),
    Sketcher.Constraint("Horizontal", 0, 2, 3, 2),
    Sketcher.Constraint("Horizontal", 7, 2, 10, 2),
    Sketcher.Constraint("Horizontal", 10, 2, 12, 2),
    Sketcher.Constraint("Horizontal", 9, 2, 13, 2),
    Sketcher.Constraint("Horizontal", 12, 2, 15, 2),
    Sketcher.Constraint("Horizontal", 11, 2, 16, 2),
    Sketcher.Constraint("Horizontal", 3, 2, 18, 2),
    Sketcher.Constraint("Horizontal", 2, 2, 19, 2),
    Sketcher.Constraint("Horizontal", 18, 2, 21, 2),
    Sketcher.Constraint("Horizontal", 5, 2, 22, 2),
    Sketcher.Constraint("Vertical", 2, 2, 4, 2),
    Sketcher.Constraint("Vertical", 1, 2, 5, 2),
    Sketcher.Constraint("Vertical", 5, 2, 6, 2),
    Sketcher.Constraint("Vertical", 0, 2, 7, 2),
    Sketcher.Constraint("Vertical", 6, 2, 8, 2),
    Sketcher.Constraint("Vertical", 4, 2, 9, 2),
    Sketcher.Constraint("Vertical", 12, 2, 18, 2),
    Sketcher.Constraint("Vertical", 16, 2, 20, 2),
    Sketcher.Constraint("Equal", 9, 14),
    Sketcher.Constraint("Angle", 0, Q("-60 deg")),
    Sketcher.Constraint("DistanceY", 5, 2, 6, 2, Q("6 mm")),
    Sketcher.Constraint("DistanceY", 2, 2, 4, 2, Q("5.7 mm")),
    Sketcher.Constraint("DistanceX", 7, 2, 12, 2, Q("40.1 mm")),
    Sketcher.Constraint("DistanceY", 0, 2, -1, 1, Q("2.18 mm")),
    Sketcher.Constraint("DistanceX", 2, 2, 2, 1, Q("3.290897 mm")),
    Sketcher.Constraint("DistanceX", 1, 2, -1, 1, Q("18.314641 mm")),
])
pocket3 = body.newObject("PartDesign::Pocket", "Pocket002")
pocket3.Profile = sketch7
pocket3.Length = 2.6
pocket3.Reversed = True

sketch8 = body.newObject("Sketcher::SketchObject", "Sketch007")
sketch8.AttachmentSupport = (doc.getObject("YZ_Plane"), [""])
sketch8.MapMode = "FlatFace"
sketch8.AttachmentOffset = App.Placement(App.Vector(0, 0, 11.35), App.Rotation())
sketch8.addGeometry([
    Part.LineSegment(App.Vector(6.6, 0, 0), App.Vector(6.6, -4.81014, 0)),
    Part.LineSegment(App.Vector(6.6, -4.81014, 0), App.Vector(1.075, -8, 0)),
    Part.LineSegment(App.Vector(1.075, -8, 0), App.Vector(-4.45, -4.81014, 0)),
    Part.LineSegment(App.Vector(-4.45, -4.81014, 0), App.Vector(-4.45, 0, 0)),
    Part.LineSegment(App.Vector(-4.45, 0, 0), App.Vector(6.6, 0, 0)),
], False)
sketch8.addConstraint([
    Sketcher.Constraint("Coincident", 0, 2, 1, 1),
    Sketcher.Constraint("Coincident", 1, 2, 2, 1),
    Sketcher.Constraint("Coincident", 2, 2, 3, 1),
    Sketcher.Constraint("Coincident", 3, 2, 4, 1),
    Sketcher.Constraint("Coincident", 4, 2, 0, 1),
    Sketcher.Constraint("Vertical", 0),
    Sketcher.Constraint("Vertical", 3),
    Sketcher.Constraint("Horizontal", 4),
    Sketcher.Constraint("PointOnObject", 3, 2, -1),
    Sketcher.Constraint("Horizontal", 0, 2, 2, 2),
    Sketcher.Constraint("Equal", 1, 2),
    Sketcher.Constraint("Angle", 1, Q("-150 deg")),
    Sketcher.Constraint("DistanceY", 1, 2, -1, 1, Q("8 mm")),
    Sketcher.Constraint("DistanceX", 4, 1, 4, 2, Q("11.05 mm")),
    Sketcher.Constraint("DistanceX", -1, 1, 0, 2, Q("6.6 mm")),
])
pocket4 = body.newObject("PartDesign::Pocket", "Pocket003")
pocket4.Profile = sketch8
pocket4.Length = 20
pocket4.Reversed = True

sketch9 = body.newObject("Sketcher::SketchObject", "Sketch008")
sketch9.AttachmentSupport = (doc.getObject("XY_Plane"), [""])
sketch9.MapMode = "FlatFace"
sketch9.addGeometry([
    Part.LineSegment(App.Vector(23.85, -6.2, 0), App.Vector(23.85, -113.953084, 0)),
    Part.LineSegment(App.Vector(23.85, -113.953084, 0), App.Vector(8.039911, -113.953084, 0)),
    Part.LineSegment(App.Vector(8.039911, -113.953084, 0), App.Vector(8.039911, -6.2, 0)),
    Part.LineSegment(App.Vector(8.039911, -6.2, 0), App.Vector(23.85, -6.2, 0)),
    Part.LineSegment(App.Vector(-15.960089, -6.2, 0), App.Vector(-15.960089, -113.83331, 0)),
    Part.LineSegment(App.Vector(-15.960089, -113.83331, 0), App.Vector(-24.2, -113.83331, 0)),
    Part.LineSegment(App.Vector(-24.2, -113.83331, 0), App.Vector(-24.2, -6.2, 0)),
    Part.LineSegment(App.Vector(-24.2, -6.2, 0), App.Vector(-15.960089, -6.2, 0)),
], False)
sketch9.addConstraint([
    Sketcher.Constraint("Coincident", 0, 2, 1, 1),
    Sketcher.Constraint("Coincident", 1, 2, 2, 1),
    Sketcher.Constraint("Coincident", 2, 2, 3, 1),
    Sketcher.Constraint("Coincident", 3, 2, 0, 1),
    Sketcher.Constraint("Coincident", 4, 2, 5, 1),
    Sketcher.Constraint("Coincident", 5, 2, 6, 1),
    Sketcher.Constraint("Coincident", 6, 2, 7, 1),
    Sketcher.Constraint("Coincident", 7, 2, 4, 1),
    Sketcher.Constraint("Vertical", 0),
    Sketcher.Constraint("Horizontal", 1),
    Sketcher.Constraint("Vertical", 2),
    Sketcher.Constraint("Horizontal", 3),
    Sketcher.Constraint("Vertical", 4),
    Sketcher.Constraint("Horizontal", 5),
    Sketcher.Constraint("Vertical", 6),
    Sketcher.Constraint("Horizontal", 7),
    Sketcher.Constraint("Horizontal", 3, 2, 6, 2),
    Sketcher.Constraint("DistanceX", 4, 2, 1, 2, Q("24 mm")),
    Sketcher.Constraint("DistanceY", 2, 2, -1, 1, Q("6.2 mm")),
    Sketcher.Constraint("DistanceX", 5, 2, -1, 1, Q("24.2 mm")),
    Sketcher.Constraint("DistanceX", -1, 1, 0, 2, Q("23.85 mm")),
    Sketcher.Constraint("DistanceX", 1, 2, 1, 1, Q("15.810089 mm")),
    Sketcher.Constraint("DistanceY", 4, 2, 4, 1, Q("107.63331 mm")),
    Sketcher.Constraint("DistanceY", 0, 2, 0, 1, Q("107.753084 mm")),
])
pocket5 = body.newObject("PartDesign::Pocket", "Pocket004")
pocket5.Profile = sketch9
pocket5.Length = 10
pocket5.Reversed = True

sketch10 = body.newObject("Sketcher::SketchObject", "Sketch009")
sketch10.AttachmentSupport = (doc.getObject("XY_Plane"), [""])
sketch10.MapMode = "FlatFace"
sketch10.AttachmentOffset = App.Placement(App.Vector(0, 0, -15.6), App.Rotation())
sketch10.addGeometry([
    Part.Circle(App.Vector(-13.810089, 0.32, 0), App.Vector(0, 0, 1), 0.625),
    Part.Circle(App.Vector(13.989911, 0.32, 0), App.Vector(0, 0, 1), 0.625),
], False)
sketch10.addConstraint([
    Sketcher.Constraint("Equal", 0, 1),
    Sketcher.Constraint("Horizontal", 0, 3, 1, 3),
    Sketcher.Constraint("Diameter", 0, Q("1.25 mm")),
    Sketcher.Constraint("DistanceX", 0, 3, 1, 3, Q("27.8 mm")),
    Sketcher.Constraint("DistanceY", -1, 1, 0, 3, Q("0.32 mm")),
    Sketcher.Constraint("DistanceX", 0, 3, -1, 1, Q("13.810089 mm")),
])
pocket6 = body.newObject("PartDesign::Pocket", "Pocket005")
pocket6.Profile = sketch10
pocket6.Length = 30
pocket6.Reversed = True

doc.recompute()
